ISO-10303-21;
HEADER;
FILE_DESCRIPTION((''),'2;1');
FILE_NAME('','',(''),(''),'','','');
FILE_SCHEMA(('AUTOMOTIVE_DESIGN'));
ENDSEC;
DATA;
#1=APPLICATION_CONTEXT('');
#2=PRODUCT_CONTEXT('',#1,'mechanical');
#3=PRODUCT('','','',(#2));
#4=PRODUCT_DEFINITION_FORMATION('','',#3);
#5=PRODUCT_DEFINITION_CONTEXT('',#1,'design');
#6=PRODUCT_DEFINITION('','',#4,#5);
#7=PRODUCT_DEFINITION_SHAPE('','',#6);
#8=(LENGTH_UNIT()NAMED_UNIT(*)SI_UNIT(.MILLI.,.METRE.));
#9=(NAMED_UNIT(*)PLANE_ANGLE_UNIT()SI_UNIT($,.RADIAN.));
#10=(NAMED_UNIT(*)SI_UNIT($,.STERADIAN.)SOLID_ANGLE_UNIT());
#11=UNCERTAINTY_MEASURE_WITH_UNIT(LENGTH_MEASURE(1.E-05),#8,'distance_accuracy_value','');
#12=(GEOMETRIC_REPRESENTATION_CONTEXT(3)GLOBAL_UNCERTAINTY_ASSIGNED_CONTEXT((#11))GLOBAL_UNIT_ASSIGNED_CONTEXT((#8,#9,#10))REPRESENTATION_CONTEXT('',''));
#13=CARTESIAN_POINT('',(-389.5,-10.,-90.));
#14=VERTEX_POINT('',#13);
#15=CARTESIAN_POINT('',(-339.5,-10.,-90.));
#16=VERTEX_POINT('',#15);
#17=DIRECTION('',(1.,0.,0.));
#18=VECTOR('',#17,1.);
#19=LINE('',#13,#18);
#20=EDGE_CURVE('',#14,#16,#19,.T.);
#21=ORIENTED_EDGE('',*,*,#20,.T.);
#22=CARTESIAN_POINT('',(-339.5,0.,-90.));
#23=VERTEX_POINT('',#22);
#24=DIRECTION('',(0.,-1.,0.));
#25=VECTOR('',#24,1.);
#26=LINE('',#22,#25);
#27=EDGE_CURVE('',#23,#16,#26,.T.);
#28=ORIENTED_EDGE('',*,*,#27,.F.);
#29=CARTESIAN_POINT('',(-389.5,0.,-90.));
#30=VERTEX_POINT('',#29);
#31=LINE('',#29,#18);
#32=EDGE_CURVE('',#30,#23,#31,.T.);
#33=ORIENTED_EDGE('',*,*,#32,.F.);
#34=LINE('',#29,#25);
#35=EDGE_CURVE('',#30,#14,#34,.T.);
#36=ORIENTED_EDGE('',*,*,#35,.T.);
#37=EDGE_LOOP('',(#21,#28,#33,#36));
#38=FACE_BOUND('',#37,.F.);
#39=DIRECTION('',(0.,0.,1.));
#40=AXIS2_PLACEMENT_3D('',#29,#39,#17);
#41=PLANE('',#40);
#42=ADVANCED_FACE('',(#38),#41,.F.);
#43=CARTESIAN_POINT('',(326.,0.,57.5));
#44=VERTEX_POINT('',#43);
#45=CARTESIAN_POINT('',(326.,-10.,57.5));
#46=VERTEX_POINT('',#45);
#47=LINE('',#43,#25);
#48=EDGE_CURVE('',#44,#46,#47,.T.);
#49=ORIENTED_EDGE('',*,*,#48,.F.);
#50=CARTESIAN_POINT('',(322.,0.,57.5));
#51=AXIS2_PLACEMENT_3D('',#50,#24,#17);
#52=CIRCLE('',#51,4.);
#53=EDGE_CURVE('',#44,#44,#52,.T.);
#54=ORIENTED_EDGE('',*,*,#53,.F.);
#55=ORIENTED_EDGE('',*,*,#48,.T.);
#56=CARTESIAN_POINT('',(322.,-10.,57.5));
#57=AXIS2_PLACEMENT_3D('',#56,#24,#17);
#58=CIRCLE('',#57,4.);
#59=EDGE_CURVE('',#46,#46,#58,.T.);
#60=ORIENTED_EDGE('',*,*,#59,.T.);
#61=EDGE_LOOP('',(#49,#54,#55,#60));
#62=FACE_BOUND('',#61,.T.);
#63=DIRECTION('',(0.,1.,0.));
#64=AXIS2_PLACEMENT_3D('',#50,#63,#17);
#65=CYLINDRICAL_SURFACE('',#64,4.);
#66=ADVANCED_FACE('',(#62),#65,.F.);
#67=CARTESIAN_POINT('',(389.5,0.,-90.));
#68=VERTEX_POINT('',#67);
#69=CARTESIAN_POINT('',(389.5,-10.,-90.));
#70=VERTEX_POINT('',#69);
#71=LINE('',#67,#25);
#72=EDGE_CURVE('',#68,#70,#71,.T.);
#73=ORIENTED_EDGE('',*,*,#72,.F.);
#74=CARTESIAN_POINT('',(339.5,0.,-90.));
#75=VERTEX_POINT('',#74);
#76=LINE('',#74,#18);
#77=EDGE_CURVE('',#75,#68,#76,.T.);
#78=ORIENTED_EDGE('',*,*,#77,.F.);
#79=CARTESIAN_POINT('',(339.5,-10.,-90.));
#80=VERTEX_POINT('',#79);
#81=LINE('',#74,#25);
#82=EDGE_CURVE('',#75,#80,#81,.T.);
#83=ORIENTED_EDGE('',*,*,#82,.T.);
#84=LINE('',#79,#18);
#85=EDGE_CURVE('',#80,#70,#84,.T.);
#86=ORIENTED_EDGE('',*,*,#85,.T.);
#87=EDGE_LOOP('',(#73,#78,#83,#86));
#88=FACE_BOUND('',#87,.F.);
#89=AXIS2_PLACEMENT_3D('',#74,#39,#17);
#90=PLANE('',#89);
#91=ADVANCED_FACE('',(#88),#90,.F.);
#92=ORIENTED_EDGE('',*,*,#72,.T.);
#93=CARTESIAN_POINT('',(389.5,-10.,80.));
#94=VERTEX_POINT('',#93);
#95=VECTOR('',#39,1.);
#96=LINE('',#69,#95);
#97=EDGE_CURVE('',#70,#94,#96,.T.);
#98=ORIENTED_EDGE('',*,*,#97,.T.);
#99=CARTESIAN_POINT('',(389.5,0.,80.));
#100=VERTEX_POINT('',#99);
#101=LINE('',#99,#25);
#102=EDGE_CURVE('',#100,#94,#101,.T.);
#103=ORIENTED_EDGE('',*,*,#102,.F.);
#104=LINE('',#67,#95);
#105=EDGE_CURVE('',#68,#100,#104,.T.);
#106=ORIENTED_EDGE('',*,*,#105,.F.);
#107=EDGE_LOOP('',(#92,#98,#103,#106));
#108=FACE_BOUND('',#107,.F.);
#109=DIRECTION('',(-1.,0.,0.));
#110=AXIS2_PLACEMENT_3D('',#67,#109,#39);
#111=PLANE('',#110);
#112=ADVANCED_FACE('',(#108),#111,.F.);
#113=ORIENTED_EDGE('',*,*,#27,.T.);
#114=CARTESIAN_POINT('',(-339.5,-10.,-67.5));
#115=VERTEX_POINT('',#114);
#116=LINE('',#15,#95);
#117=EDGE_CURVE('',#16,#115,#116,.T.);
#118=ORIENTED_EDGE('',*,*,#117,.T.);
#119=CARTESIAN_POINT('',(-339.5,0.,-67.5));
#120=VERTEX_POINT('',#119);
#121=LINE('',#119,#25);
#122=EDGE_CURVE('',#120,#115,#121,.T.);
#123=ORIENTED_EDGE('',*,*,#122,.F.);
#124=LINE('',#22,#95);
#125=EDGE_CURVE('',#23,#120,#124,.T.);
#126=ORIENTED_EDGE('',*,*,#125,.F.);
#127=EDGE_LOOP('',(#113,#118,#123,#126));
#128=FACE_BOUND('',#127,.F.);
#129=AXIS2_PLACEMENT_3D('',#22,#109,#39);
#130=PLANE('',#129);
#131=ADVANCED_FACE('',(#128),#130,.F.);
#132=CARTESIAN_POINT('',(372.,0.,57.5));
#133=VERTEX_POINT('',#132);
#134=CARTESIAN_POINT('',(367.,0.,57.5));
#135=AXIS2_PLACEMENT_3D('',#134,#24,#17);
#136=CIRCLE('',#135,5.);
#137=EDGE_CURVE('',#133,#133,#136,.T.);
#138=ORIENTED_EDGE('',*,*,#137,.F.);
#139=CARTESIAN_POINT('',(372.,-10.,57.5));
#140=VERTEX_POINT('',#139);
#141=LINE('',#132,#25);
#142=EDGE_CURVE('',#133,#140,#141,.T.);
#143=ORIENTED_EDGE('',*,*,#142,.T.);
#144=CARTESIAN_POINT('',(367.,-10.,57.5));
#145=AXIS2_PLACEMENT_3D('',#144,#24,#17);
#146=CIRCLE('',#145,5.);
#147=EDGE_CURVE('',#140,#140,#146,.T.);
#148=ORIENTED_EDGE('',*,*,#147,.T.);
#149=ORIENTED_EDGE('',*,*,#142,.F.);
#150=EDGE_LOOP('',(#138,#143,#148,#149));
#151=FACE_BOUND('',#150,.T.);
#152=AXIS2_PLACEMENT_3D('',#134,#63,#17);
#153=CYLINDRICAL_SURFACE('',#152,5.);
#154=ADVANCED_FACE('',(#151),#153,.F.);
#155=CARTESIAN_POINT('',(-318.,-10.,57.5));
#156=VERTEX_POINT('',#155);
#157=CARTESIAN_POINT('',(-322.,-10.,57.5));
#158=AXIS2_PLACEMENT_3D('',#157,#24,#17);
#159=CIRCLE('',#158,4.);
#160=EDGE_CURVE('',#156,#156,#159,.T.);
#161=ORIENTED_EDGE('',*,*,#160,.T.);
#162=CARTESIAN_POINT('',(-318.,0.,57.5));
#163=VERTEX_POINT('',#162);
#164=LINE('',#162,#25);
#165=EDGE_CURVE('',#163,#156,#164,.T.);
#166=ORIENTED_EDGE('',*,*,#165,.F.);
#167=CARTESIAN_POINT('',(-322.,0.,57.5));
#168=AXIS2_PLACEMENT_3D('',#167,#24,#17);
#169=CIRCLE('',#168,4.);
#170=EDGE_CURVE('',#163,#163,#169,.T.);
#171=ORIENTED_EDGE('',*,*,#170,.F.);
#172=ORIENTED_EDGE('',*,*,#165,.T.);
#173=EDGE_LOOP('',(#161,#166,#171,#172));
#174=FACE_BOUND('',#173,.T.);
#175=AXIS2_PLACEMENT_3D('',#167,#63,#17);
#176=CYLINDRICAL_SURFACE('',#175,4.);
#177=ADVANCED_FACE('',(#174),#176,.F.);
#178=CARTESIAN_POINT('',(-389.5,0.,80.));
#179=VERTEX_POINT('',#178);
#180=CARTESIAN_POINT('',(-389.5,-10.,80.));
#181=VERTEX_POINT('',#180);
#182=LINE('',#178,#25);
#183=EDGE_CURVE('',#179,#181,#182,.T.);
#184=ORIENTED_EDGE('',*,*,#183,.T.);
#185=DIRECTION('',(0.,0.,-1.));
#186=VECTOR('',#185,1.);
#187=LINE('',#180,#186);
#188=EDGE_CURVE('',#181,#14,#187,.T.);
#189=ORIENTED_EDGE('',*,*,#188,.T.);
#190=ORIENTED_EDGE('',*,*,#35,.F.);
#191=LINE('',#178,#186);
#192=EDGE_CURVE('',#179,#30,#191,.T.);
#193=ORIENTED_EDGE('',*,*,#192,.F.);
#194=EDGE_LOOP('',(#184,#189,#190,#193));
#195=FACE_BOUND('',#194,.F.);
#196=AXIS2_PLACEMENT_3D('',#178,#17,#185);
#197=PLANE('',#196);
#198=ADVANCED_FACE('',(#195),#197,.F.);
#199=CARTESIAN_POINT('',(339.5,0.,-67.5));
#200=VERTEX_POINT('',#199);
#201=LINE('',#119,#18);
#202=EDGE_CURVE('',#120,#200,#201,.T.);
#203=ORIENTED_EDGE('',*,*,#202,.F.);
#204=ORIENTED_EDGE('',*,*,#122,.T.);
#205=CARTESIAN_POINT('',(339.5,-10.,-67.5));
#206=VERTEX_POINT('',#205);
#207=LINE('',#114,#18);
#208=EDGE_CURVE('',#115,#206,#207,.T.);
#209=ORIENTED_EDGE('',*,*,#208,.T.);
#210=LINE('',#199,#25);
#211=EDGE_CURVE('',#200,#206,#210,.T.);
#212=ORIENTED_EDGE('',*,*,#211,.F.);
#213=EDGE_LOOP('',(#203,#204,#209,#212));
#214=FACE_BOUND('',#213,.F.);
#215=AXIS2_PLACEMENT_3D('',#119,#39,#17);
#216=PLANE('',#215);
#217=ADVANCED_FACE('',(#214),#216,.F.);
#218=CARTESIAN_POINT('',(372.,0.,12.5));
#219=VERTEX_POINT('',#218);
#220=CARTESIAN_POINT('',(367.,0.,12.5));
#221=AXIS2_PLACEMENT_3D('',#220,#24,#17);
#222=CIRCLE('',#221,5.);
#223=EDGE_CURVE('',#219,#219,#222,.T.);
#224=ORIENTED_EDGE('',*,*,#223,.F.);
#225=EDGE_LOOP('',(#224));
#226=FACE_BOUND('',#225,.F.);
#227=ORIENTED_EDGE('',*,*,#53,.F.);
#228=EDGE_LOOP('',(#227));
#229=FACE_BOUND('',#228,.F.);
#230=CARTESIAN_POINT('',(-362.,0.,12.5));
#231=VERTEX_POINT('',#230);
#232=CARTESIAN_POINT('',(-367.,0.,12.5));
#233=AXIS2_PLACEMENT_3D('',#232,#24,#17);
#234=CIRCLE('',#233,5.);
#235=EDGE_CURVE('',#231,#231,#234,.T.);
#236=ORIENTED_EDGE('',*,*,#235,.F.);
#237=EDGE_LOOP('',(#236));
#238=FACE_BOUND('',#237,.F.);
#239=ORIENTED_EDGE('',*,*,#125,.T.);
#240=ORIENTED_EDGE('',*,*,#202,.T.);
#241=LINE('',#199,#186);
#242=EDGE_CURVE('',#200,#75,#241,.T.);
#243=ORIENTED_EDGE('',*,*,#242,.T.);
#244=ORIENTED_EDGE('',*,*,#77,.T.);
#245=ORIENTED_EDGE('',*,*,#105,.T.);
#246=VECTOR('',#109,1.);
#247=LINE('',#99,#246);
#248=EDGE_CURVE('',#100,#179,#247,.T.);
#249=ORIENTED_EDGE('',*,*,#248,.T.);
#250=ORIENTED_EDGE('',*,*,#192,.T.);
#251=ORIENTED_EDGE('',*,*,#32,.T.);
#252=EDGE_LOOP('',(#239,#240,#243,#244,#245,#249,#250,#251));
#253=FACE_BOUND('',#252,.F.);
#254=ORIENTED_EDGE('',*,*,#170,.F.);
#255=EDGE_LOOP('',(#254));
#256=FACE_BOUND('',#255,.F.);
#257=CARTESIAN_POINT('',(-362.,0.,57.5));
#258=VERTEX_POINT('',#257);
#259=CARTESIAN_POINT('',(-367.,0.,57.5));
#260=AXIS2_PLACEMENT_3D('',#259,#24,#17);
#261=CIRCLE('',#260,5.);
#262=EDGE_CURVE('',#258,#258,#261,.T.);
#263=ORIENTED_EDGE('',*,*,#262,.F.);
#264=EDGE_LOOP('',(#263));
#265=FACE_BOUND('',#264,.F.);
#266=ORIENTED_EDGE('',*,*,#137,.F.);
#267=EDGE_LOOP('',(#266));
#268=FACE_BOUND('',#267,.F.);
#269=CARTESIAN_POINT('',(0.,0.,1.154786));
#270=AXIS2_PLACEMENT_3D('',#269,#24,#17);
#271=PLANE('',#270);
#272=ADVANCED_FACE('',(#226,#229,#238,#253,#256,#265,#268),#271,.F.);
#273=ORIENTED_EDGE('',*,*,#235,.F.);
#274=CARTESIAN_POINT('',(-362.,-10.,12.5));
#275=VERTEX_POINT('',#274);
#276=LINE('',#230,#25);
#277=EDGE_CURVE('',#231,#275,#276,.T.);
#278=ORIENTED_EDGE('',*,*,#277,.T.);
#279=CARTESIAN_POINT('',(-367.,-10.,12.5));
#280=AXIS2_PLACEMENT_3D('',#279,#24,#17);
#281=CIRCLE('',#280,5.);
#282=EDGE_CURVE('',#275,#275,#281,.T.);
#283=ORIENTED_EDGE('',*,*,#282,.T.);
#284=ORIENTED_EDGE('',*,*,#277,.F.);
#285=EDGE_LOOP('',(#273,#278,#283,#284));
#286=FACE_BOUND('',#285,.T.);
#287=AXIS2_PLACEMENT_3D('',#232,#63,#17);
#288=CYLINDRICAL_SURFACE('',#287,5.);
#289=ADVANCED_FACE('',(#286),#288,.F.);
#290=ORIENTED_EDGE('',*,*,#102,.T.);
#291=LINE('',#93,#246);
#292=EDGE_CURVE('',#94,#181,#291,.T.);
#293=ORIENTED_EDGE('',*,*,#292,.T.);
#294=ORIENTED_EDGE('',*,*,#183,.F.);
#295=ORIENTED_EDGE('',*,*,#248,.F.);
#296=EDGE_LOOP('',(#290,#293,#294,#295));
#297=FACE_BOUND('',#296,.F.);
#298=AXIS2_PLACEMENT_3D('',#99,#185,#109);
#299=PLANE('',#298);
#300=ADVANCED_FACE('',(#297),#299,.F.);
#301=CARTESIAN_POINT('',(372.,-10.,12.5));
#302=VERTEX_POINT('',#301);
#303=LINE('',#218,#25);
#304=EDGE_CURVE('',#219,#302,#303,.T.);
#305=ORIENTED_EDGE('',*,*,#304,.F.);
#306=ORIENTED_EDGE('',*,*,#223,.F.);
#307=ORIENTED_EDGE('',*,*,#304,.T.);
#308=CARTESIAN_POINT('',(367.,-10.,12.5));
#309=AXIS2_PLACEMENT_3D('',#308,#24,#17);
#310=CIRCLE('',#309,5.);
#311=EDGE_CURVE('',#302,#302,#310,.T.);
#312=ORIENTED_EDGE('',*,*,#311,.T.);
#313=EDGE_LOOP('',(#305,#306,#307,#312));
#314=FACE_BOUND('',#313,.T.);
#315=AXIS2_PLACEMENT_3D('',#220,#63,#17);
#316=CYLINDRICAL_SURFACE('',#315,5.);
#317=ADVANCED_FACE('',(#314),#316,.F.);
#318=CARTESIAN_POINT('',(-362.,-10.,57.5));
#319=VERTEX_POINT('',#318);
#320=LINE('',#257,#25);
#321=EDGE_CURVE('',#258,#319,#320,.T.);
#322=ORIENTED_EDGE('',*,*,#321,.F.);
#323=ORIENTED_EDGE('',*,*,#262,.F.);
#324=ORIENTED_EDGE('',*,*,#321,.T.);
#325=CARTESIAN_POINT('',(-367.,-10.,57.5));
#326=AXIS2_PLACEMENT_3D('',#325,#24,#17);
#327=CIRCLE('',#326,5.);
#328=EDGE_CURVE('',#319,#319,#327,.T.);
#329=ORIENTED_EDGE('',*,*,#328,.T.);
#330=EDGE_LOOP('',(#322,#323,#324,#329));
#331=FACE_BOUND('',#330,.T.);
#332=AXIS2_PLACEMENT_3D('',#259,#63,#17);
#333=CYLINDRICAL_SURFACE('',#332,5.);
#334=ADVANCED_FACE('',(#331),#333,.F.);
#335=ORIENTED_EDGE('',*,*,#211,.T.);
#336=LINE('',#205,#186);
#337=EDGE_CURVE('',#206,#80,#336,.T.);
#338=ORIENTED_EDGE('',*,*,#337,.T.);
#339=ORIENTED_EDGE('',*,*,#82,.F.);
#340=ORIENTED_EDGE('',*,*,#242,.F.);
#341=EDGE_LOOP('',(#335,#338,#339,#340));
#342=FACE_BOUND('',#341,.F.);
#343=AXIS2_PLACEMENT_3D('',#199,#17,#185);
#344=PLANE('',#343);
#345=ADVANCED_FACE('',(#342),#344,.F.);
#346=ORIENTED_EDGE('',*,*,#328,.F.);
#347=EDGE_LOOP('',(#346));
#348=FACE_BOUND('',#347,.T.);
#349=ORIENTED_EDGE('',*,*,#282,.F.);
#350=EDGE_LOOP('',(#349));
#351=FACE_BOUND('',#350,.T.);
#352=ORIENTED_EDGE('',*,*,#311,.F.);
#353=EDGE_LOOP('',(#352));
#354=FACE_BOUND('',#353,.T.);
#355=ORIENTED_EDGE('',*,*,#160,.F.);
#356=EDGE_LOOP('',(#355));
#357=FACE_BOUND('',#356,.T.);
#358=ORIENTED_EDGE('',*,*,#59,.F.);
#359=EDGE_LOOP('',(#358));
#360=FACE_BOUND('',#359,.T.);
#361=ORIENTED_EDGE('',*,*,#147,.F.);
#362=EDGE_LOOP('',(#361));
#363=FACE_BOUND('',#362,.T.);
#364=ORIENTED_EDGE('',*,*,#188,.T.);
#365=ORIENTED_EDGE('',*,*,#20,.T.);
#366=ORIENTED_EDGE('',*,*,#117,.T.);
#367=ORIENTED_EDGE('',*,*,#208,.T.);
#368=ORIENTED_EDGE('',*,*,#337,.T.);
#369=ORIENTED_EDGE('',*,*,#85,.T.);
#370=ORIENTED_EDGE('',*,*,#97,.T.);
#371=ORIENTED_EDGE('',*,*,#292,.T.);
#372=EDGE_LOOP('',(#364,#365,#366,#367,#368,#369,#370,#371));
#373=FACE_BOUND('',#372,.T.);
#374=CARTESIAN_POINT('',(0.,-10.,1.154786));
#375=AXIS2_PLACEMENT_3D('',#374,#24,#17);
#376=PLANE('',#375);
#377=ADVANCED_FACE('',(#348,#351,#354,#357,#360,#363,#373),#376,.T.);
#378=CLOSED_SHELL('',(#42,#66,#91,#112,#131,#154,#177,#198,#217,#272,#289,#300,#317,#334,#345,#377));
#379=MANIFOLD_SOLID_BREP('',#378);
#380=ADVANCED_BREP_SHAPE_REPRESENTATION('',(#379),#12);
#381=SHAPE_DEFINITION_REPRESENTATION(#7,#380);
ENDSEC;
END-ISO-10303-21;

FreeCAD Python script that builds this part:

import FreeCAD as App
import Part
import Sketcher

V = App.Vector

doc = App.newDocument("Part")
body = doc.addObject("PartDesign::Body", "Body")

sketch1 = body.newObject("Sketcher::SketchObject", "Sketch")
sketch1.AttachmentSupport = (doc.getObject("XZ_Plane"), [""])
sketch1.MapMode = "FlatFace"
sketch1.addGeometry(Part.LineSegment(V(389.5, 80, 0), V(-389.5, 80, 0)), False)
sketch1.addGeometry(Part.LineSegment(V(-389.5, 80, 0), V(-389.5, -90, 0)), False)
sketch1.addGeometry(Part.LineSegment(V(-389.5, -90, 0), V(-339.5, -90, 0)), False)
sketch1.addGeometry(Part.LineSegment(V(-339.5, -90, 0), V(-339.5, -67.5, 0)), False)
sketch1.addGeometry(Part.LineSegment(V(-339.5, -67.5, 0), V(339.5, -67.5, 0)), False)
sketch1.addGeometry(Part.LineSegment(V(339.5, -67.5, 0), V(339.5, -90, 0)), False)
sketch1.addGeometry(Part.LineSegment(V(339.5, -90, 0), V(389.5, -90, 0)), False)
sketch1.addGeometry(Part.LineSegment(V(389.5, -90, 0), V(389.5, 80, 0)), False)
sketch1.addGeometry(Part.Circle(V(-367, 12.5, 0), V(0, 0, 1), 5), False)
sketch1.addGeometry(Part.Circle(V(367, 12.5, 0), V(0, 0, 1), 5), False)
sketch1.addGeometry(Part.Circle(V(-367, 57.5, 0), V(0, 0, 1), 5), False)
sketch1.addGeometry(Part.Circle(V(-322, 57.5, 0), V(0, 0, 1), 4), False)
sketch1.addGeometry(Part.Circle(V(322, 57.5, 0), V(0, 0, 1), 4), False)
sketch1.addGeometry(Part.Circle(V(367, 57.5, 0), V(0, 0, 1), 5), False)
sketch1.addConstraint(Sketcher.Constraint("Coincident", 0, 2, 1, 1))
sketch1.addConstraint(Sketcher.Constraint("Coincident", 1, 2, 2, 1))
sketch1.addConstraint(Sketcher.Constraint("Coincident", 2, 2, 3, 1))
sketch1.addConstraint(Sketcher.Constraint("Coincident", 3, 2, 4, 1))
sketch1.addConstraint(Sketcher.Constraint("Coincident", 4, 2, 5, 1))
sketch1.addConstraint(Sketcher.Constraint("Coincident", 5, 2, 6, 1))
sketch1.addConstraint(Sketcher.Constraint("Coincident", 6, 2, 7, 1))
sketch1.addConstraint(Sketcher.Constraint("Coincident", 7, 2, 0, 1))
sketch1.addConstraint(Sketcher.Constraint("Horizontal", 0))
sketch1.addConstraint(Sketcher.Constraint("Vertical", 1))
sketch1.addConstraint(Sketcher.Constraint("Horizontal", 2))
sketch1.addConstraint(Sketcher.Constraint("Vertical", 3))
sketch1.addConstraint(Sketcher.Constraint("Horizontal", 4))
sketch1.addConstraint(Sketcher.Constraint("Vertical", 5))
sketch1.addConstraint(Sketcher.Constraint("Horizontal", 6))
sketch1.addConstraint(Sketcher.Constraint("Vertical", 7))
sketch1.addConstraint(Sketcher.Constraint("Equal", 8, 9))
sketch1.addConstraint(Sketcher.Constraint("Equal", 9, 10))
sketch1.addConstraint(Sketcher.Constraint("Equal", 11, 12))
sketch1.addConstraint(Sketcher.Constraint("Equal", 10, 13))
sketch1.addConstraint(Sketcher.Constraint("Symmetric", 8, 3, 9, 3, -2))
sketch1.addConstraint(Sketcher.Constraint("Symmetric", 11, 3, 12, 3, -2))
sketch1.addConstraint(Sketcher.Constraint("Symmetric", 10, 3, 13, 3, -2))
sketch1.addConstraint(Sketcher.Constraint("Symmetric", 2, 2, 5, 2, -2))
sketch1.addConstraint(Sketcher.Constraint("Horizontal", 10, 3, 11, 3))
sketch1.addConstraint(Sketcher.Constraint("Vertical", 8, 3, 10, 3))
sketch1.addConstraint(Sketcher.Constraint("Equal", 2, 6))
sketch1.addConstraint(Sketcher.Constraint("Diameter", 8, 10.0))
sketch1.addConstraint(Sketcher.Constraint("Diameter", 11, 8.0))
sketch1.addConstraint(Sketcher.Constraint("DistanceX", 0, 2, 0, 1, 779.0))
sketch1.addConstraint(Sketcher.Constraint("DistanceX", 2, 1, 2, 2, 50.0))
sketch1.addConstraint(Sketcher.Constraint("DistanceY", 1, 2, 1, 1, 170.0))
sketch1.addConstraint(Sketcher.Constraint("DistanceY", 3, 1, 3, 2, 22.5))
sketch1.addConstraint(Sketcher.Constraint("DistanceX", 8, 3, -1, 1, 367.0))
sketch1.addConstraint(Sketcher.Constraint("DistanceX", 11, 3, -1, 1, 322.0))
sketch1.addConstraint(Sketcher.Constraint("DistanceY", -1, 1, 0, 2, 80.0))
sketch1.addConstraint(Sketcher.Constraint("DistanceY", 8, 3, 10, 3, 45.0))
sketch1.addConstraint(Sketcher.Constraint("DistanceY", 3, 2, 8, 3, 80.0))
pad1 = body.newObject("PartDesign::Pad", "Pad")
pad1.Profile = sketch1
pad1.Length = 10

doc.recompute()
